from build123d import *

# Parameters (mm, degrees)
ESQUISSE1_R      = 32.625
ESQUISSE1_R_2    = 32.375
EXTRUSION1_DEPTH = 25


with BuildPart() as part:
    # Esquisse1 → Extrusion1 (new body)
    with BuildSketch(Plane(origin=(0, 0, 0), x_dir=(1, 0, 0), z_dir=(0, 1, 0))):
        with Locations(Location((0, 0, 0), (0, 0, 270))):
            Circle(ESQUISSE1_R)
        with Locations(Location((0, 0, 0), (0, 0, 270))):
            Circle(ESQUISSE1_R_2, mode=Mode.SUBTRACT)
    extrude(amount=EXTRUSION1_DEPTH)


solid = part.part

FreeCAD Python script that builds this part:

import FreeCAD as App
import Part
import Sketcher
Q = App.Units.Quantity

doc = App.newDocument("Part")
body = doc.addObject("PartDesign::Body", "Body")

# Sketch on XZ plane
sketch1 = doc.addObject("Sketcher::SketchObject", "Sketch")
body.addObject(sketch1)
sketch1.AttachmentSupport = (doc.XZ_Plane, [""])
sketch1.MapMode = "FlatFace"
sketch1.addGeometry([
    Part.Circle(App.Vector(0, 0, 0), App.Vector(0, 0, 1), 33),
    Part.Circle(App.Vector(0, 0, 0), App.Vector(0, 0, 1), 32),
], False)
sketch1.addConstraint([
    Sketcher.Constraint("Coincident", 0, 3, -1, 1),
    Sketcher.Constraint("Coincident", 1, 3, -1, 1),
    Sketcher.Constraint("Diameter", 0, Q("65.25 mm")),
    Sketcher.Constraint("Diameter", 1, Q("64.75 mm")),
])
pad1 = doc.addObject("PartDesign::Pad", "Pad")
body.addObject(pad1)
pad1.Profile = sketch1
pad1.Length = 25
pad1.Reversed = True

doc.recompute()
